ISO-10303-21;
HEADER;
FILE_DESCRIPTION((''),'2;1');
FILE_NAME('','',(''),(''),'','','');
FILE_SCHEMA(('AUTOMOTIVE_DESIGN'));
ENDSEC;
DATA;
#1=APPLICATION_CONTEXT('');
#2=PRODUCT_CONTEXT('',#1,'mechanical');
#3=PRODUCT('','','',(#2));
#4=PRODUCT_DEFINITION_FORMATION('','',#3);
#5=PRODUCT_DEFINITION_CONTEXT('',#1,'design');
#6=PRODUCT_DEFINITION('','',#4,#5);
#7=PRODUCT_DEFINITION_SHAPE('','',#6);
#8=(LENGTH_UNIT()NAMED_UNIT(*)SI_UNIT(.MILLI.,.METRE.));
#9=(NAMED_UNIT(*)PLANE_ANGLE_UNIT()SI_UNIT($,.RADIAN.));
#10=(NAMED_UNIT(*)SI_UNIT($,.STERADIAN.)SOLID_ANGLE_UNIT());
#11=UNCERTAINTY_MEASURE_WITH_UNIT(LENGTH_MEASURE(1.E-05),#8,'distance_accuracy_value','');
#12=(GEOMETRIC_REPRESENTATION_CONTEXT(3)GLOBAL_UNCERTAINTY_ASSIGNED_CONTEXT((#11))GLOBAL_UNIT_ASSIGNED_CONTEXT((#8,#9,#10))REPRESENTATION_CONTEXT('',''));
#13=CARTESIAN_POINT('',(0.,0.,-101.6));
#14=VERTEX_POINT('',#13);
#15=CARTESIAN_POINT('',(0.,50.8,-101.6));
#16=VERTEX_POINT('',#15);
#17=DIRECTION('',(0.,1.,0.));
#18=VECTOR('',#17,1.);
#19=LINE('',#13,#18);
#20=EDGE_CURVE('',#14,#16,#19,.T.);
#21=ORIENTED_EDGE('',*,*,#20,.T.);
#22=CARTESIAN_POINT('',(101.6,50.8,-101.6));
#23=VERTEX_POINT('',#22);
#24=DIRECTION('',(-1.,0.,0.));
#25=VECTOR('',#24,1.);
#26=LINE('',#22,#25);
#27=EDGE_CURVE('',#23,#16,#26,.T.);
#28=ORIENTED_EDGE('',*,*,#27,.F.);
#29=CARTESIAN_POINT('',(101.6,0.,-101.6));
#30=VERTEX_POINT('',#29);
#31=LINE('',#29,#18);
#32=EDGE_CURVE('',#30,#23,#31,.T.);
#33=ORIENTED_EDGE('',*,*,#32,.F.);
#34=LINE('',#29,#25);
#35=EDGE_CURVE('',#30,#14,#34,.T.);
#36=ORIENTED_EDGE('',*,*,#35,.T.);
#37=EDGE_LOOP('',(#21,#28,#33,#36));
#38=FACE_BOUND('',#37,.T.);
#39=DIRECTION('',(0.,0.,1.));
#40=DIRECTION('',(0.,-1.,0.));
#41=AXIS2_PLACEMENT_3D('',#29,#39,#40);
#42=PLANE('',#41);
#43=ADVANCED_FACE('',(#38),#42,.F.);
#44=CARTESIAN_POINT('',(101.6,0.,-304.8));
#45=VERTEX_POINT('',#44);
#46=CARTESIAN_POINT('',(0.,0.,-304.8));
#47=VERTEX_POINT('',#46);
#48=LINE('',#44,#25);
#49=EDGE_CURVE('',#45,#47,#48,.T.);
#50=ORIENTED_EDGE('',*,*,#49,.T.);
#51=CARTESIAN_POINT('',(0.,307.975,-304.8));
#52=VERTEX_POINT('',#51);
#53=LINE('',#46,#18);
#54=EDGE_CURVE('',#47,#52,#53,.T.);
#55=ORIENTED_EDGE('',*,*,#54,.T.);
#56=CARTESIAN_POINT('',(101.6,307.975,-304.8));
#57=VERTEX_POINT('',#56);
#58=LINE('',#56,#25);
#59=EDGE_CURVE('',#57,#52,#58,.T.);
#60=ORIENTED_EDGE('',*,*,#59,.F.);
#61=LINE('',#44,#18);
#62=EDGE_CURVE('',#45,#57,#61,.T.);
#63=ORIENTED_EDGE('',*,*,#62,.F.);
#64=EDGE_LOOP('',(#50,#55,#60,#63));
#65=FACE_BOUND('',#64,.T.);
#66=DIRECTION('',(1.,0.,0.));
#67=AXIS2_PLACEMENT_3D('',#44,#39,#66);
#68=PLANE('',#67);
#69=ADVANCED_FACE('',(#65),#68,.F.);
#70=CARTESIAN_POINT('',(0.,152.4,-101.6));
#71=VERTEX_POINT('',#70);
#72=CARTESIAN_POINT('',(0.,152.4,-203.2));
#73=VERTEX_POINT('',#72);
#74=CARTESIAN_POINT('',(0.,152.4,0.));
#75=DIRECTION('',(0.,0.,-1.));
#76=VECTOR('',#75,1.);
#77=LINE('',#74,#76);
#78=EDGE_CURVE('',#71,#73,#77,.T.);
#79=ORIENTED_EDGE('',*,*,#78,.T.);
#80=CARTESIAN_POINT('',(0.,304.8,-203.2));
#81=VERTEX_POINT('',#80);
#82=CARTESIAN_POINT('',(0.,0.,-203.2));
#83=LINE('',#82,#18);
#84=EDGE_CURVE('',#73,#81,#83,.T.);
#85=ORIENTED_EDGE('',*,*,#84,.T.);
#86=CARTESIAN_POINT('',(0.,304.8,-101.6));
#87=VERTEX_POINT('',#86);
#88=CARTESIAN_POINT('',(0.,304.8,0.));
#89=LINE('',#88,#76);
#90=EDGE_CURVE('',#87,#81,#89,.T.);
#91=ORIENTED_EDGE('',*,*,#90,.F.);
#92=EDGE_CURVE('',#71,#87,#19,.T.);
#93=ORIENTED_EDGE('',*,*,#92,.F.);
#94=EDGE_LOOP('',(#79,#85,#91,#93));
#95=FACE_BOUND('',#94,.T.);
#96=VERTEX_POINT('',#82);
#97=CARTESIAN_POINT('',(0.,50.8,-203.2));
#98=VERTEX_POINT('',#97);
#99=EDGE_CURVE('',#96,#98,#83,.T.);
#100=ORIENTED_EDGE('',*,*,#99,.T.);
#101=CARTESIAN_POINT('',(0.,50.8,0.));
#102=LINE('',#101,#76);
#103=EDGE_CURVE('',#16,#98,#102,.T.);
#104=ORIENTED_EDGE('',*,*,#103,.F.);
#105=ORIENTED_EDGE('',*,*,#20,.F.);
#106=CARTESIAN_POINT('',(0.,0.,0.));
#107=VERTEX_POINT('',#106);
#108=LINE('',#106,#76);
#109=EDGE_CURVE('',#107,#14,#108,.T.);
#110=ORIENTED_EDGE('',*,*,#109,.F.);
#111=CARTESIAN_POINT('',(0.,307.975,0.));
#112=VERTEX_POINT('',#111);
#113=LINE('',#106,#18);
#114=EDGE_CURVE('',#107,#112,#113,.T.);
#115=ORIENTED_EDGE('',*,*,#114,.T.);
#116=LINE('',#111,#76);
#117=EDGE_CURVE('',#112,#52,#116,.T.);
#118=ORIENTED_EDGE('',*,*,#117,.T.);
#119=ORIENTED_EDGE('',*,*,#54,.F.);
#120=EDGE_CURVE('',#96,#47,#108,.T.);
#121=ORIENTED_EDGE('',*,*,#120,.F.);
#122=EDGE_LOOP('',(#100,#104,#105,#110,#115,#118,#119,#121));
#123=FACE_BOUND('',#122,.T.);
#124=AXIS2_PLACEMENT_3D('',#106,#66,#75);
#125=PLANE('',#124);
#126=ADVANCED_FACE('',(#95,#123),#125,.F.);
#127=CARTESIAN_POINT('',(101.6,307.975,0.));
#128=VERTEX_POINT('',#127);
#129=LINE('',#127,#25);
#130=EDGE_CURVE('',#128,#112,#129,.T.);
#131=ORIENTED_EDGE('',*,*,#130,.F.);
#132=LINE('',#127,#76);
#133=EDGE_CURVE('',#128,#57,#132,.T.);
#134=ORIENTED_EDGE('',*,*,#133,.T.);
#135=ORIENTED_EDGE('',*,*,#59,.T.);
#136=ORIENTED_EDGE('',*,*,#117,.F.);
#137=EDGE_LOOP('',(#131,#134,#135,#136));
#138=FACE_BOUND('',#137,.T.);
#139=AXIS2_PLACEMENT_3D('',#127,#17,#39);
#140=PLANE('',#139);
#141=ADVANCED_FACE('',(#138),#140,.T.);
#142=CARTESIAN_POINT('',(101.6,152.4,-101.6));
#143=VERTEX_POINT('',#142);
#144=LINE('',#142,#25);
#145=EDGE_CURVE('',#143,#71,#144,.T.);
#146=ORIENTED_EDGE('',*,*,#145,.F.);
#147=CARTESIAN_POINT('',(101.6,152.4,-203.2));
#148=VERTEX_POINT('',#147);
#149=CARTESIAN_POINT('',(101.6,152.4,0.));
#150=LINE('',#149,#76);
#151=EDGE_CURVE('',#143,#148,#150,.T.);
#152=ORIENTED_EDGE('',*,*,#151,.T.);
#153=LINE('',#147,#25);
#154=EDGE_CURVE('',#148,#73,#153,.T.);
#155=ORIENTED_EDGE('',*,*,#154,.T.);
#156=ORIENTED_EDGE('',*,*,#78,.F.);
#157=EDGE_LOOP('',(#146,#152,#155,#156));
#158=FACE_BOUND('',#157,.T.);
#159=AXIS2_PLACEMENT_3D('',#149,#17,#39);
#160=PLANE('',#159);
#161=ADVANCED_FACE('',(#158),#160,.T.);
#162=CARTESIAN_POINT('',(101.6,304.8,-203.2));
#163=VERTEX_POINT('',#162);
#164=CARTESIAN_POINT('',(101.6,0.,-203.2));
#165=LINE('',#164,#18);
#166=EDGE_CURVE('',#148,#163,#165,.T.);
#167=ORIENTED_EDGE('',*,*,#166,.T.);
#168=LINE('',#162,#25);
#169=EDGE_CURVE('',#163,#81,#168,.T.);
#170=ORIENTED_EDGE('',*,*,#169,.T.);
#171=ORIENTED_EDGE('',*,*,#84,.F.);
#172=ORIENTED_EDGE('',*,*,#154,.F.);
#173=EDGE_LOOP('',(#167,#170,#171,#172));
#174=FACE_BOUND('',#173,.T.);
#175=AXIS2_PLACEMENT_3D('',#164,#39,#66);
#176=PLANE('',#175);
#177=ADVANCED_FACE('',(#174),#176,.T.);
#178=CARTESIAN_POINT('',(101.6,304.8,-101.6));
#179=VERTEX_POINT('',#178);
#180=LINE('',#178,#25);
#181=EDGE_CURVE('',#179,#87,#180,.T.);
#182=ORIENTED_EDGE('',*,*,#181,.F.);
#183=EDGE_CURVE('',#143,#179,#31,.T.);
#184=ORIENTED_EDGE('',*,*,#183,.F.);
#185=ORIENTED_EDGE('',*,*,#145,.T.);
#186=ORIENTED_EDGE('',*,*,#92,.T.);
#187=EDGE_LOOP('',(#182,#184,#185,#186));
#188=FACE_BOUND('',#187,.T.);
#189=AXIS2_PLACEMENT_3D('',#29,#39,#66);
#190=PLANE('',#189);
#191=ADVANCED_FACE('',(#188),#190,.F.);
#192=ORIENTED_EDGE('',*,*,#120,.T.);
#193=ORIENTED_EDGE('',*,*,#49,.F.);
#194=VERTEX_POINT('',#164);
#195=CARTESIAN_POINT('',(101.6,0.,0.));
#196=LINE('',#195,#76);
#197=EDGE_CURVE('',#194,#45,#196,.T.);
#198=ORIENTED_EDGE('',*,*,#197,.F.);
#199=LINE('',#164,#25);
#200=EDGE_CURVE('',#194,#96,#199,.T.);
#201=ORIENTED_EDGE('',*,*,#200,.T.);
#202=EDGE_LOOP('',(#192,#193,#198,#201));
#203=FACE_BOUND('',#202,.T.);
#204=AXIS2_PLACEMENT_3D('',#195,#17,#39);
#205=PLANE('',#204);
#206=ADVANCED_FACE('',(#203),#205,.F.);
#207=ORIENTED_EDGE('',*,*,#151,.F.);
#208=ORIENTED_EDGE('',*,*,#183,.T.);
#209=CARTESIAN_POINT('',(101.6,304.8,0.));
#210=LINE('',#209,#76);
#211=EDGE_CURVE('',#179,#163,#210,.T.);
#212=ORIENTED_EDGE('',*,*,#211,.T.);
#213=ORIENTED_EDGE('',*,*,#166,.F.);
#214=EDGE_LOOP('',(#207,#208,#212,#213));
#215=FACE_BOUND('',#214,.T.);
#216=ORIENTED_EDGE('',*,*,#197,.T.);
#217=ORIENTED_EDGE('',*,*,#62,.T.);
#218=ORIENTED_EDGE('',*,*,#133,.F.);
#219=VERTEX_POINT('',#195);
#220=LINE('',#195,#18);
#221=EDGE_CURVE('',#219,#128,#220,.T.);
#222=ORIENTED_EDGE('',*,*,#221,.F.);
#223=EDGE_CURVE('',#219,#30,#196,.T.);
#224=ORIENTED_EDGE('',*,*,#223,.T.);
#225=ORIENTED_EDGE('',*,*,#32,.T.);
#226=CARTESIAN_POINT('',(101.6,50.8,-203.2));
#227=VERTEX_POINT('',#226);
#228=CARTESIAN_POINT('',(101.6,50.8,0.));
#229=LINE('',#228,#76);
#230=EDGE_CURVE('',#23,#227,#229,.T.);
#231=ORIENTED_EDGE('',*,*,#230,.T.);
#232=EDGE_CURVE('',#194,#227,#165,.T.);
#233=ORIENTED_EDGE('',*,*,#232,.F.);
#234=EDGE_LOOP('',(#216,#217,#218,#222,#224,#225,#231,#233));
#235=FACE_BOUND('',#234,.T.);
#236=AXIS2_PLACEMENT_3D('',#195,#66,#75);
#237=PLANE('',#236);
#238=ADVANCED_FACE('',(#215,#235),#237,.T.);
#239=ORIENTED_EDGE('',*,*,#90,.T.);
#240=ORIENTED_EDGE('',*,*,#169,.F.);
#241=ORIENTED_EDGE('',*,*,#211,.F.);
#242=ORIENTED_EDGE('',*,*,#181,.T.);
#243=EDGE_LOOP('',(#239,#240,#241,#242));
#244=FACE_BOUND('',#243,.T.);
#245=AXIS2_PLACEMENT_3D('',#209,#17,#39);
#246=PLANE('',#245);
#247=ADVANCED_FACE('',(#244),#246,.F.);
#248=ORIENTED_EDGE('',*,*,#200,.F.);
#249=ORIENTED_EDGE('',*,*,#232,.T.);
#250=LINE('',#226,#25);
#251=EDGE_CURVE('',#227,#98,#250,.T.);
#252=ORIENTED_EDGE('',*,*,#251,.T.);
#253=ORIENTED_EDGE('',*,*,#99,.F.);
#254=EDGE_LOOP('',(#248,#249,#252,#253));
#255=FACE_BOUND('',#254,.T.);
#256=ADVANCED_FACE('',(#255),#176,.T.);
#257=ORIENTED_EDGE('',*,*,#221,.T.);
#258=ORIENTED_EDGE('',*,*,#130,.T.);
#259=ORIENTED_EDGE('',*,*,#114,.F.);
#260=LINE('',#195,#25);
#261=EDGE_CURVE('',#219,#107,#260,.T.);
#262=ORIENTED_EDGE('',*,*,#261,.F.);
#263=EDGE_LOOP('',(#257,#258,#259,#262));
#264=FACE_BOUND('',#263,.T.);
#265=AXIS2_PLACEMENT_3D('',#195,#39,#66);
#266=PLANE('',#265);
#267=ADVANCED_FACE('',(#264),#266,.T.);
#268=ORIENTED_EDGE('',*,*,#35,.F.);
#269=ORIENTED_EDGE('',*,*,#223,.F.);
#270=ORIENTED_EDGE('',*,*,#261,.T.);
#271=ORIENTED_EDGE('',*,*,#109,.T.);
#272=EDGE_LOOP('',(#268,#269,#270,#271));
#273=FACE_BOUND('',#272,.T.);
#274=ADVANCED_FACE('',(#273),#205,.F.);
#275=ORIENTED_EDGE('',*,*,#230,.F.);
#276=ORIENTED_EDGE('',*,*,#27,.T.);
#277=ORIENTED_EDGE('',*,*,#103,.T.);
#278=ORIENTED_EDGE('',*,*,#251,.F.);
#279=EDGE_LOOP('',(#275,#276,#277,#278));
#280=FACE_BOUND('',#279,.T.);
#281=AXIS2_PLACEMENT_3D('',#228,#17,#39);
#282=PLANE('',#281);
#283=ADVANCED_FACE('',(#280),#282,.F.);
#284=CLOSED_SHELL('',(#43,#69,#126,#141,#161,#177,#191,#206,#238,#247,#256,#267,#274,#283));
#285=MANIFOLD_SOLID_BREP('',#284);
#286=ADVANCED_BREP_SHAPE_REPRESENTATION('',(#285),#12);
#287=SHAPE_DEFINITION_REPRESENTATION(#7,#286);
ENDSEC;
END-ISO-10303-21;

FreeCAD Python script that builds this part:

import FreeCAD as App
import Part
import Sketcher
Q = App.Units.Quantity

doc = App.newDocument("Part")
params = doc.addObject("Spreadsheet::Sheet", "Params")
for row, (alias, value) in enumerate([
    ("sketch1_width", "2 in"),
    ("sketch1_width2", "6 in"),
    ("sketch1_height", "4 in"),
    ("sketch1_width3", "12.125 in"),
    ("pad1_length", "4 in"),
], start=1):
    params.set(f"A{row}", alias)
    params.set(f"B{row}", "=" + value)
    params.setAlias(f"B{row}", alias)

body = doc.addObject("PartDesign::Body", "Body")

sketch1 = doc.addObject("Sketcher::SketchObject", "Sketch")
body.addObject(sketch1)
sketch1.AttachmentSupport = (doc.YZ_Plane, [""])
sketch1.MapMode = "FlatFace"
sketch1.addGeometry(Part.LineSegment(App.Vector(307.975, 0, 0), App.Vector(0, 0, 0)), False)
sketch1.addGeometry(Part.LineSegment(App.Vector(0, 0, 0), App.Vector(0, -101.6, 0)), False)
sketch1.addGeometry(Part.LineSegment(App.Vector(0, -101.6, 0), App.Vector(50.8, -101.6, 0)), False)
sketch1.addGeometry(Part.LineSegment(App.Vector(50.8, -101.6, 0), App.Vector(50.8, -203.2, 0)), False)
sketch1.addGeometry(Part.LineSegment(App.Vector(50.8, -203.2, 0), App.Vector(0, -203.2, 0)), False)
sketch1.addGeometry(Part.LineSegment(App.Vector(0, -203.2, 0), App.Vector(0, -304.8, 0)), False)
sketch1.addGeometry(Part.LineSegment(App.Vector(0, -304.8, 0), App.Vector(307.975, -304.8, 0)), False)
sketch1.addGeometry(Part.LineSegment(App.Vector(307.975, -304.8, 0), App.Vector(307.975, 0, 0)), False)
sketch1.addGeometry(Part.LineSegment(App.Vector(152.4, -203.2, 0), App.Vector(152.4, -101.6, 0)), False)
sketch1.addGeometry(Part.LineSegment(App.Vector(152.4, -101.6, 0), App.Vector(304.8, -101.6, 0)), False)
sketch1.addGeometry(Part.LineSegment(App.Vector(304.8, -101.6, 0), App.Vector(304.8, -203.2, 0)), False)
sketch1.addGeometry(Part.LineSegment(App.Vector(304.8, -203.2, 0), App.Vector(152.4, -203.2, 0)), False)
sketch1.addConstraint(Sketcher.Constraint("Coincident", 0, 2, 1, 1))
sketch1.addConstraint(Sketcher.Constraint("Coincident", 1, 2, 2, 1))
sketch1.addConstraint(Sketcher.Constraint("Coincident", 2, 2, 3, 1))
sketch1.addConstraint(Sketcher.Constraint("Coincident", 3, 2, 4, 1))
sketch1.addConstraint(Sketcher.Constraint("Coincident", 4, 2, 5, 1))
sketch1.addConstraint(Sketcher.Constraint("Coincident", 5, 2, 6, 1))
sketch1.addConstraint(Sketcher.Constraint("Coincident", 6, 2, 7, 1))
sketch1.addConstraint(Sketcher.Constraint("Coincident", 7, 2, 0, 1))
sketch1.addConstraint(Sketcher.Constraint("Coincident", 8, 2, 9, 1))
sketch1.addConstraint(Sketcher.Constraint("Coincident", 9, 2, 10, 1))
sketch1.addConstraint(Sketcher.Constraint("Coincident", 10, 2, 11, 1))
sketch1.addConstraint(Sketcher.Constraint("Coincident", 11, 2, 8, 1))
sketch1.addConstraint(Sketcher.Constraint("Horizontal", 0))
sketch1.addConstraint(Sketcher.Constraint("Vertical", 1))
sketch1.addConstraint(Sketcher.Constraint("Horizontal", 2))
sketch1.addConstraint(Sketcher.Constraint("Vertical", 3))
sketch1.addConstraint(Sketcher.Constraint("Horizontal", 4))
sketch1.addConstraint(Sketcher.Constraint("Vertical", 5))
sketch1.addConstraint(Sketcher.Constraint("Horizontal", 6))
sketch1.addConstraint(Sketcher.Constraint("Vertical", 7))
sketch1.addConstraint(Sketcher.Constraint("Vertical", 8))
sketch1.addConstraint(Sketcher.Constraint("Horizontal", 9))
sketch1.addConstraint(Sketcher.Constraint("Vertical", 10))
sketch1.addConstraint(Sketcher.Constraint("Horizontal", 11))
sketch1.addConstraint(Sketcher.Constraint("Coincident", 0, 2, -1, 1))
sketch1.addConstraint(Sketcher.Constraint("PointOnObject", 4, 2, -2))
sketch1.addConstraint(Sketcher.Constraint("Horizontal", 2, 2, 8, 2))
sketch1.addConstraint(Sketcher.Constraint("Horizontal", 4, 2, 10, 2))
sketch1.addConstraint(Sketcher.Constraint("Equal", 1, 3))
sketch1.addConstraint(Sketcher.Constraint("Equal", 3, 5))
sketch1.addConstraint(Sketcher.Constraint("DistanceX", 2, 1, 2, 2, Q("2 in")))
sketch1.addConstraint(Sketcher.Constraint("DistanceX", 9, 1, 9, 2, Q("6 in")))
sketch1.addConstraint(Sketcher.Constraint("DistanceY", 1, 2, 1, 1, Q("4 in")))
sketch1.addConstraint(Sketcher.Constraint("DistanceX", -1, 1, 8, 2, Q("6 in")))
sketch1.addConstraint(Sketcher.Constraint("DistanceX", 0, 2, 0, 1, Q("12.125 in")))
sketch1.setExpression("Constraints[30]", "Params.sketch1_width")
sketch1.setExpression("Constraints[31]", "Params.sketch1_width2")
sketch1.setExpression("Constraints[32]", "Params.sketch1_height")
sketch1.setExpression("Constraints[34]", "Params.sketch1_width3")
pad1 = doc.addObject("PartDesign::Pad", "Pad")
body.addObject(pad1)
pad1.Profile = sketch1
pad1.setExpression("Length", "Params.pad1_length")

doc.recompute()
